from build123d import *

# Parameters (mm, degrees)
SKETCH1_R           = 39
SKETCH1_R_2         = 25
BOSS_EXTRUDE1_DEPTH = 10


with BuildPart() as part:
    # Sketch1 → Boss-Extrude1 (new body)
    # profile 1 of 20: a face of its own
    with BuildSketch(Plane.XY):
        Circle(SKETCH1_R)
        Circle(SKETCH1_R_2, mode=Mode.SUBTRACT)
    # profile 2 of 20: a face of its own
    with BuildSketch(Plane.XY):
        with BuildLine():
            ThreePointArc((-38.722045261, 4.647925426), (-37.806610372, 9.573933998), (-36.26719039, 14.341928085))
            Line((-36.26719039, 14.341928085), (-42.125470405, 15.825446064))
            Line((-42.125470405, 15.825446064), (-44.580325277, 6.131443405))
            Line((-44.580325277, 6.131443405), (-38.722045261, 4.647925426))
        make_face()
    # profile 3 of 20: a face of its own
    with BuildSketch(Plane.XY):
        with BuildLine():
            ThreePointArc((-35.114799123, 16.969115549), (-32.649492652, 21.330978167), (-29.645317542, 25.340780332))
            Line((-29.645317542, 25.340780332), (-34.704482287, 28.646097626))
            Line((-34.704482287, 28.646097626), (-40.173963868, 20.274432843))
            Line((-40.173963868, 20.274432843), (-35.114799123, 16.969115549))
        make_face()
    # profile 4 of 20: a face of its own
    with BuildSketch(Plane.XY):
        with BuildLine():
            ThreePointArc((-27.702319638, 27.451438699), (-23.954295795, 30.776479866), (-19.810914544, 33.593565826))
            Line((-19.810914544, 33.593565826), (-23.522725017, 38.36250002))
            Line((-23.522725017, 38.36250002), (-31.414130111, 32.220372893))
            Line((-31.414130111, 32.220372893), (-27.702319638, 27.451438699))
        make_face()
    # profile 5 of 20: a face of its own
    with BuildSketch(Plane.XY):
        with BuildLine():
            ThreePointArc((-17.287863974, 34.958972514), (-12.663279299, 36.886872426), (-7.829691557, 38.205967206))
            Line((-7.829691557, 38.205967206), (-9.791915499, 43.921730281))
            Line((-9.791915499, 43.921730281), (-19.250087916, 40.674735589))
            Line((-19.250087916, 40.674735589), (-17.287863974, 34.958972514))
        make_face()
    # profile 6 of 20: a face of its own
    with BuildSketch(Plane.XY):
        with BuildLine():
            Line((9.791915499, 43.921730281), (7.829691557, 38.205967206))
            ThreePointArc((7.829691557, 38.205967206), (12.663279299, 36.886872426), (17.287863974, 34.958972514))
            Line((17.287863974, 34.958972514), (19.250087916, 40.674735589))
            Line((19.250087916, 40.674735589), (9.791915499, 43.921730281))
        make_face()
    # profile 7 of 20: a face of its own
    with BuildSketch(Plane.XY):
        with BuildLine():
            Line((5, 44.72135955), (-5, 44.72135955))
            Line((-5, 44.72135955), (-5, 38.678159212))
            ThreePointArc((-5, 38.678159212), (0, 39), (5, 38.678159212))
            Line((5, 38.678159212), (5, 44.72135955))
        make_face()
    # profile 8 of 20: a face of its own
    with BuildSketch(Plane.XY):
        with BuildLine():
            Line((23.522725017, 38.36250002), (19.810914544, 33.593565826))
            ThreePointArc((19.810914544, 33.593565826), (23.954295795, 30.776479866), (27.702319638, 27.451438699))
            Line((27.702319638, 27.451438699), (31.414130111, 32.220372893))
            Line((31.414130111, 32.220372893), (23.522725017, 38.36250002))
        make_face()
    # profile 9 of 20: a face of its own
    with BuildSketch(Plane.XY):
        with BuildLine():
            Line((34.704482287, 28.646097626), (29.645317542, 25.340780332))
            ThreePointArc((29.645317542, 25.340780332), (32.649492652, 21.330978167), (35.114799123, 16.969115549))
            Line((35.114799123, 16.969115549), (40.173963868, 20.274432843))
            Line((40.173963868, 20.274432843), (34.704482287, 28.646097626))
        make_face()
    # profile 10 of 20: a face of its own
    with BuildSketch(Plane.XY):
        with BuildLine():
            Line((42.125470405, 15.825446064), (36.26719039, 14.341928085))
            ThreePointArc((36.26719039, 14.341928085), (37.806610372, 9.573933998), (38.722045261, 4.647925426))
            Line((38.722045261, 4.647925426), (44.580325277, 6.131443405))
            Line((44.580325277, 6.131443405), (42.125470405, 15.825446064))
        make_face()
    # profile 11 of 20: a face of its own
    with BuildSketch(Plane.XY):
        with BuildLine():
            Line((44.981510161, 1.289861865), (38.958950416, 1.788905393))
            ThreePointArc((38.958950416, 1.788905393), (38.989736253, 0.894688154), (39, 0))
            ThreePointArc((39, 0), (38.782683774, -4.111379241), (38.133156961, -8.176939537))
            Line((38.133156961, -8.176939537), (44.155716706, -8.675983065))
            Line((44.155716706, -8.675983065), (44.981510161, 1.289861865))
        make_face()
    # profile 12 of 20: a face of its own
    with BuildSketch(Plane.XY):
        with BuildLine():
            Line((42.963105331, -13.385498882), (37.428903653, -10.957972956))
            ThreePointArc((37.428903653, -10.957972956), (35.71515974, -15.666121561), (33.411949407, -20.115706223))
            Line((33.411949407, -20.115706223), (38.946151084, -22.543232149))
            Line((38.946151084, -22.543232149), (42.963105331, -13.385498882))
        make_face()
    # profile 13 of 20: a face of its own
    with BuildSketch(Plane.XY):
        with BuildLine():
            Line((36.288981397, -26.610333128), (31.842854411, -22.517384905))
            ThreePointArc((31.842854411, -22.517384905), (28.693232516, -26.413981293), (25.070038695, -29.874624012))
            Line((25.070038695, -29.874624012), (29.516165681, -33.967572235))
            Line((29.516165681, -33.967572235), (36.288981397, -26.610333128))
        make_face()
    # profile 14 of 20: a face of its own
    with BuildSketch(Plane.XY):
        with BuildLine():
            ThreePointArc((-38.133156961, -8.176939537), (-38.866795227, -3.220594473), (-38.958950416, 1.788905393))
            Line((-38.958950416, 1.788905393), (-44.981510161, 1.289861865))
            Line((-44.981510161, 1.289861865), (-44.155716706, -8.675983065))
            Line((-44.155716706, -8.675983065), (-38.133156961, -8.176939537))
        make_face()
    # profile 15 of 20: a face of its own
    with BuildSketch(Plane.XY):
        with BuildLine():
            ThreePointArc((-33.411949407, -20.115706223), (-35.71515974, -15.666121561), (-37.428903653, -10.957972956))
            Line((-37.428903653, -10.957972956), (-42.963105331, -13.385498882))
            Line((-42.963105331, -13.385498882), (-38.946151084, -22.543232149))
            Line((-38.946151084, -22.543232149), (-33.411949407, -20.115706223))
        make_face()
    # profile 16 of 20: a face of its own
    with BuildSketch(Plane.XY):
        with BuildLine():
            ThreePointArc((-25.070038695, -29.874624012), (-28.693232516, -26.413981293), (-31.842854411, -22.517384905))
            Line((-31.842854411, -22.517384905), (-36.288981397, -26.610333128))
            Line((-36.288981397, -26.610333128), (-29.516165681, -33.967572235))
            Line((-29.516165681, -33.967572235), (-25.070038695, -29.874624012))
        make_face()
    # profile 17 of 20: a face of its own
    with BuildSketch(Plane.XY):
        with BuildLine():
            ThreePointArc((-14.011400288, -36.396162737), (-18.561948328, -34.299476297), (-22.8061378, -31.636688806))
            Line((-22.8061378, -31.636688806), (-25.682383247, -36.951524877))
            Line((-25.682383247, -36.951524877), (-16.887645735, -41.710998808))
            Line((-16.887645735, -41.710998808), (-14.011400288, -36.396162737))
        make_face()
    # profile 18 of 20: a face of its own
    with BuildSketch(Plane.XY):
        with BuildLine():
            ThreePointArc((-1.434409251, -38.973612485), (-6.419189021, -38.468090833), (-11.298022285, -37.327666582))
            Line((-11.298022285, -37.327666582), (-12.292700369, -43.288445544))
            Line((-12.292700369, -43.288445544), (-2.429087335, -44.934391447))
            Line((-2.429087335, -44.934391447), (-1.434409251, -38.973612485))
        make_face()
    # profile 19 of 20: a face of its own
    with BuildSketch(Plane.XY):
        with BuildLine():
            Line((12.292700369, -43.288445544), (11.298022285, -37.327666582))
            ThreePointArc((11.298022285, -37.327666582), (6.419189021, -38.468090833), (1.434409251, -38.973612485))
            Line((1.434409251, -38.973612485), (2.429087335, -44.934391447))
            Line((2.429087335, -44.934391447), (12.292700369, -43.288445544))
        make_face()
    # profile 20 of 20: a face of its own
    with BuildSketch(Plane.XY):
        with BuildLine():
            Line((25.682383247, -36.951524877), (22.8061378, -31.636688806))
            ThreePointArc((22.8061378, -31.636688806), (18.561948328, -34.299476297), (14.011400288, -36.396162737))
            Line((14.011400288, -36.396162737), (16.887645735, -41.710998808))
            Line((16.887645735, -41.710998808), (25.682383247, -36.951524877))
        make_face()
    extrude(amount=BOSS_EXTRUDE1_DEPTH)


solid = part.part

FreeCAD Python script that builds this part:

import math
import FreeCAD as App
import Part
import Sketcher

V = App.Vector

doc = App.newDocument("Part")
body = doc.addObject("PartDesign::Body", "Body")

sketch1 = body.newObject("Sketcher::SketchObject", "Sketch")
sketch1.AttachmentSupport = (doc.getObject("XY_Plane"), [""])
sketch1.MapMode = "FlatFace"
sketch1.addGeometry([
    Part.ArcOfCircle(Part.Circle(V(0, 0, 0), V(0, 0, 1), 39), math.radians(2.629044), math.radians(6.84464)),
    Part.LineSegment(V(38.722045, 4.647925, 0), V(44.580325, 6.131443, 0)),
    Part.LineSegment(V(44.580325, 6.131443, 0), V(42.12547, 15.825446, 0)),
    Part.LineSegment(V(42.12547, 15.825446, 0), V(36.26719, 14.341928, 0)),
    Part.ArcOfCircle(Part.Circle(V(0, 0, 0), V(0, 0, 1), 39), math.radians(21.576412), math.radians(25.792009)),
    Part.LineSegment(V(35.114799, 16.969116, 0), V(40.173964, 20.274433, 0)),
    Part.LineSegment(V(40.173964, 20.274433, 0), V(34.704482, 28.646098, 0)),
    Part.LineSegment(V(34.704482, 28.646098, 0), V(29.645318, 25.34078, 0)),
    Part.ArcOfCircle(Part.Circle(V(0, 0, 0), V(0, 0, 1), 39), math.radians(40.523781), math.radians(44.739377)),
    Part.LineSegment(V(27.70232, 27.451439, 0), V(31.41413, 32.220373, 0)),
    Part.LineSegment(V(31.41413, 32.220373, 0), V(23.522725, 38.3625, 0)),
    Part.LineSegment(V(23.522725, 38.3625, 0), V(19.810915, 33.593566, 0)),
    Part.ArcOfCircle(Part.Circle(V(0, 0, 0), V(0, 0, 1), 39), math.radians(59.471149), math.radians(63.686746)),
    Part.LineSegment(V(17.287864, 34.958973, 0), V(19.250088, 40.674736, 0)),
    Part.LineSegment(V(19.250088, 40.674736, 0), V(9.791915, 43.92173, 0)),
    Part.LineSegment(V(9.791915, 43.92173, 0), V(7.829692, 38.205967, 0)),
    Part.ArcOfCircle(Part.Circle(V(0, 0, 0), V(0, 0, 1), 39), math.radians(78.418517), math.radians(82.634114)),
    Part.LineSegment(V(5, 38.678159, 0), V(5, 44.72136, 0)),
    Part.LineSegment(V(5, 44.72136, 0), V(-5, 44.72136, 0)),
    Part.LineSegment(V(-5, 44.72136, 0), V(-5, 38.678159, 0)),
    Part.ArcOfCircle(Part.Circle(V(0, 0, 0), V(0, 0, 1), 39), math.radians(97.365886), math.radians(101.581483)),
    Part.LineSegment(V(-7.829692, 38.205967, 0), V(-9.791915, 43.92173, 0)),
    Part.LineSegment(V(-9.791915, 43.92173, 0), V(-19.250088, 40.674736, 0)),
    Part.LineSegment(V(-19.250088, 40.674736, 0), V(-17.287864, 34.958973, 0)),
    Part.ArcOfCircle(Part.Circle(V(0, 0, 0), V(0, 0, 1), 39), math.radians(116.313254), math.radians(120.528851)),
    Part.LineSegment(V(-19.810915, 33.593566, 0), V(-23.522725, 38.3625, 0)),
    Part.LineSegment(V(-23.522725, 38.3625, 0), V(-31.41413, 32.220373, 0)),
    Part.LineSegment(V(-31.41413, 32.220373, 0), V(-27.70232, 27.451439, 0)),
    Part.ArcOfCircle(Part.Circle(V(0, 0, 0), V(0, 0, 1), 39), math.radians(135.260623), math.radians(139.476219)),
    Part.LineSegment(V(-29.645318, 25.34078, 0), V(-34.704482, 28.646098, 0)),
    Part.LineSegment(V(-34.704482, 28.646098, 0), V(-40.173964, 20.274433, 0)),
    Part.LineSegment(V(-40.173964, 20.274433, 0), V(-35.114799, 16.969116, 0)),
    Part.ArcOfCircle(Part.Circle(V(0, 0, 0), V(0, 0, 1), 39), math.radians(154.207991), math.radians(158.423588)),
    Part.LineSegment(V(-36.26719, 14.341928, 0), V(-42.12547, 15.825446, 0)),
    Part.LineSegment(V(-42.12547, 15.825446, 0), V(-44.580325, 6.131443, 0)),
    Part.LineSegment(V(-44.580325, 6.131443, 0), V(-38.722045, 4.647925, 0)),
    Part.ArcOfCircle(Part.Circle(V(0, 0, 0), V(0, 0, 1), 39), math.radians(173.15536), math.radians(177.370956)),
    Part.LineSegment(V(-38.95895, 1.788905, 0), V(-44.98151, 1.289862, 0)),
    Part.LineSegment(V(-44.98151, 1.289862, 0), V(-44.155717, -8.675983, 0)),
    Part.LineSegment(V(-44.155717, -8.675983, 0), V(-38.133157, -8.17694, 0)),
    Part.ArcOfCircle(Part.Circle(V(0, 0, 0), V(0, 0, 1), 39), math.radians(-167.897272), math.radians(-163.681675)),
    Part.LineSegment(V(-37.428904, -10.957973, 0), V(-42.963105, -13.385499, 0)),
    Part.LineSegment(V(-42.963105, -13.385499, 0), V(-38.946151, -22.543232, 0)),
    Part.LineSegment(V(-38.946151, -22.543232, 0), V(-33.411949, -20.115706, 0)),
    Part.ArcOfCircle(Part.Circle(V(0, 0, 0), V(0, 0, 1), 39), math.radians(-148.949904), math.radians(-144.734307)),
    Part.LineSegment(V(-31.842854, -22.517385, 0), V(-36.288981, -26.610333, 0)),
    Part.LineSegment(V(-36.288981, -26.610333, 0), V(-29.516166, -33.967572, 0)),
    Part.LineSegment(V(-29.516166, -33.967572, 0), V(-25.070039, -29.874624, 0)),
    Part.ArcOfCircle(Part.Circle(V(0, 0, 0), V(0, 0, 1), 39), math.radians(-130.002535), math.radians(-125.786938)),
    Part.LineSegment(V(-22.806138, -31.636689, 0), V(-25.682383, -36.951525, 0)),
    Part.LineSegment(V(-25.682383, -36.951525, 0), V(-16.887646, -41.710999, 0)),
    Part.LineSegment(V(-16.887646, -41.710999, 0), V(-14.0114, -36.396163, 0)),
    Part.ArcOfCircle(Part.Circle(V(0, 0, 0), V(0, 0, 1), 39), math.radians(-111.055167), math.radians(-106.83957)),
    Part.LineSegment(V(-11.298022, -37.327667, 0), V(-12.2927, -43.288446, 0)),
    Part.LineSegment(V(-12.2927, -43.288446, 0), V(-2.429087, -44.934391, 0)),
    Part.LineSegment(V(-2.429087, -44.934391, 0), V(-1.434409, -38.973612, 0)),
    Part.ArcOfCircle(Part.Circle(V(0, 0, 0), V(0, 0, 1), 39), math.radians(-92.107798), math.radians(-87.892202)),
    Part.LineSegment(V(1.434409, -38.973612, 0), V(2.429087, -44.934391, 0)),
    Part.LineSegment(V(2.429087, -44.934391, 0), V(12.2927, -43.288446, 0)),
    Part.LineSegment(V(12.2927, -43.288446, 0), V(11.298022, -37.327667, 0)),
    Part.ArcOfCircle(Part.Circle(V(0, 0, 0), V(0, 0, 1), 39), math.radians(-73.16043), math.radians(-68.944833)),
    Part.LineSegment(V(14.0114, -36.396163, 0), V(16.887646, -41.710999, 0)),
    Part.LineSegment(V(16.887646, -41.710999, 0), V(25.682383, -36.951525, 0)),
    Part.LineSegment(V(25.682383, -36.951525, 0), V(22.806138, -31.636689, 0)),
    Part.ArcOfCircle(Part.Circle(V(0, 0, 0), V(0, 0, 1), 39), math.radians(-54.213062), math.radians(-49.997465)),
    Part.LineSegment(V(25.070039, -29.874624, 0), V(29.516166, -33.967572, 0)),
    Part.LineSegment(V(29.516166, -33.967572, 0), V(36.288981, -26.610333, 0)),
    Part.LineSegment(V(36.288981, -26.610333, 0), V(31.842854, -22.517385, 0)),
    Part.ArcOfCircle(Part.Circle(V(0, 0, 0), V(0, 0, 1), 39), math.radians(-35.265693), math.radians(-31.050096)),
    Part.LineSegment(V(33.411949, -20.115706, 0), V(38.946151, -22.543232, 0)),
    Part.LineSegment(V(38.946151, -22.543232, 0), V(42.963105, -13.385499, 0)),
    Part.LineSegment(V(42.963105, -13.385499, 0), V(37.428904, -10.957973, 0)),
    Part.ArcOfCircle(Part.Circle(V(0, 0, 0), V(0, 0, 1), 39), math.radians(-16.318325), math.radians(-12.102728)),
    Part.LineSegment(V(38.133157, -8.17694, 0), V(44.155717, -8.675983, 0)),
    Part.LineSegment(V(44.155717, -8.675983, 0), V(44.98151, 1.289862, 0)),
    Part.LineSegment(V(44.98151, 1.289862, 0), V(38.95895, 1.788905, 0)),
    Part.Circle(V(0, 0, 0), V(0, 0, 1), 25),
], False)
sketch1.addConstraint([
    Sketcher.Constraint("Coincident", 0, 2, 1, 1),
    Sketcher.Constraint("Coincident", 1, 2, 2, 1),
    Sketcher.Constraint("Coincident", 2, 2, 3, 1),
    Sketcher.Constraint("Coincident", 3, 2, 4, 1),
    Sketcher.Constraint("Coincident", 4, 2, 5, 1),
    Sketcher.Constraint("Coincident", 5, 2, 6, 1),
    Sketcher.Constraint("Coincident", 6, 2, 7, 1),
    Sketcher.Constraint("Coincident", 7, 2, 8, 1),
    Sketcher.Constraint("Coincident", 8, 2, 9, 1),
    Sketcher.Constraint("Coincident", 9, 2, 10, 1),
    Sketcher.Constraint("Coincident", 10, 2, 11, 1),
    Sketcher.Constraint("Coincident", 11, 2, 12, 1),
    Sketcher.Constraint("Coincident", 12, 2, 13, 1),
    Sketcher.Constraint("Coincident", 13, 2, 14, 1),
    Sketcher.Constraint("Coincident", 14, 2, 15, 1),
    Sketcher.Constraint("Coincident", 15, 2, 16, 1),
    Sketcher.Constraint("Coincident", 16, 2, 17, 1),
    Sketcher.Constraint("Coincident", 17, 2, 18, 1),
    Sketcher.Constraint("Coincident", 18, 2, 19, 1),
    Sketcher.Constraint("Coincident", 19, 2, 20, 1),
    Sketcher.Constraint("Coincident", 20, 2, 21, 1),
    Sketcher.Constraint("Coincident", 21, 2, 22, 1),
    Sketcher.Constraint("Coincident", 22, 2, 23, 1),
    Sketcher.Constraint("Coincident", 23, 2, 24, 1),
    Sketcher.Constraint("Coincident", 24, 2, 25, 1),
    Sketcher.Constraint("Coincident", 25, 2, 26, 1),
    Sketcher.Constraint("Coincident", 26, 2, 27, 1),
    Sketcher.Constraint("Coincident", 27, 2, 28, 1),
    Sketcher.Constraint("Coincident", 28, 2, 29, 1),
    Sketcher.Constraint("Coincident", 29, 2, 30, 1),
    Sketcher.Constraint("Coincident", 30, 2, 31, 1),
    Sketcher.Constraint("Coincident", 31, 2, 32, 1),
    Sketcher.Constraint("Coincident", 32, 2, 33, 1),
    Sketcher.Constraint("Coincident", 33, 2, 34, 1),
    Sketcher.Constraint("Coincident", 34, 2, 35, 1),
    Sketcher.Constraint("Coincident", 35, 2, 36, 1),
    Sketcher.Constraint("Coincident", 36, 2, 37, 1),
    Sketcher.Constraint("Coincident", 37, 2, 38, 1),
    Sketcher.Constraint("Coincident", 38, 2, 39, 1),
    Sketcher.Constraint("Coincident", 39, 2, 40, 1),
    Sketcher.Constraint("Coincident", 40, 2, 41, 1),
    Sketcher.Constraint("Coincident", 41, 2, 42, 1),
    Sketcher.Constraint("Coincident", 42, 2, 43, 1),
    Sketcher.Constraint("Coincident", 43, 2, 44, 1),
    Sketcher.Constraint("Coincident", 44, 2, 45, 1),
    Sketcher.Constraint("Coincident", 45, 2, 46, 1),
    Sketcher.Constraint("Coincident", 46, 2, 47, 1),
    Sketcher.Constraint("Coincident", 47, 2, 48, 1),
    Sketcher.Constraint("Coincident", 48, 2, 49, 1),
    Sketcher.Constraint("Coincident", 49, 2, 50, 1),
    Sketcher.Constraint("Coincident", 50, 2, 51, 1),
    Sketcher.Constraint("Coincident", 51, 2, 52, 1),
    Sketcher.Constraint("Coincident", 52, 2, 53, 1),
    Sketcher.Constraint("Coincident", 53, 2, 54, 1),
    Sketcher.Constraint("Coincident", 54, 2, 55, 1),
    Sketcher.Constraint("Coincident", 55, 2, 56, 1),
    Sketcher.Constraint("Coincident", 56, 2, 57, 1),
    Sketcher.Constraint("Coincident", 57, 2, 58, 1),
    Sketcher.Constraint("Coincident", 58, 2, 59, 1),
    Sketcher.Constraint("Coincident", 59, 2, 60, 1),
    Sketcher.Constraint("Coincident", 60, 2, 61, 1),
    Sketcher.Constraint("Coincident", 61, 2, 62, 1),
    Sketcher.Constraint("Coincident", 62, 2, 63, 1),
    Sketcher.Constraint("Coincident", 63, 2, 64, 1),
    Sketcher.Constraint("Coincident", 64, 2, 65, 1),
    Sketcher.Constraint("Coincident", 65, 2, 66, 1),
    Sketcher.Constraint("Coincident", 66, 2, 67, 1),
    Sketcher.Constraint("Coincident", 67, 2, 68, 1),
    Sketcher.Constraint("Coincident", 68, 2, 69, 1),
    Sketcher.Constraint("Coincident", 69, 2, 70, 1),
    Sketcher.Constraint("Coincident", 70, 2, 71, 1),
    Sketcher.Constraint("Coincident", 71, 2, 72, 1),
    Sketcher.Constraint("Coincident", 72, 2, 73, 1),
    Sketcher.Constraint("Coincident", 73, 2, 74, 1),
    Sketcher.Constraint("Coincident", 74, 2, 75, 1),
    Sketcher.Constraint("Coincident", 75, 2, 0, 1),
    Sketcher.Constraint("Vertical", 17),
    Sketcher.Constraint("Horizontal", 18),
    Sketcher.Constraint("Vertical", 19),
    Sketcher.Constraint("Coincident", 0, 3, -1, 1),
    Sketcher.Constraint("Coincident", 4, 3, -1, 1),
    Sketcher.Constraint("Coincident", 8, 3, -1, 1),
    Sketcher.Constraint("Coincident", 12, 3, -1, 1),
    Sketcher.Constraint("Coincident", 16, 3, -1, 1),
    Sketcher.Constraint("Coincident", 20, 3, -1, 1),
    Sketcher.Constraint("Coincident", 24, 3, -1, 1),
    Sketcher.Constraint("Coincident", 28, 3, -1, 1),
    Sketcher.Constraint("Coincident", 32, 3, -1, 1),
    Sketcher.Constraint("Coincident", 36, 3, -1, 1),
    Sketcher.Constraint("Coincident", 40, 3, -1, 1),
    Sketcher.Constraint("Coincident", 44, 3, -1, 1),
    Sketcher.Constraint("Coincident", 48, 3, -1, 1),
    Sketcher.Constraint("Coincident", 52, 3, -1, 1),
    Sketcher.Constraint("Coincident", 56, 3, -1, 1),
    Sketcher.Constraint("Coincident", 60, 3, -1, 1),
    Sketcher.Constraint("Coincident", 64, 3, -1, 1),
    Sketcher.Constraint("Coincident", 68, 3, -1, 1),
    Sketcher.Constraint("Coincident", 72, 3, -1, 1),
    Sketcher.Constraint("Coincident", 76, 3, -1, 1),
    Sketcher.Constraint("Equal", 0, 4),
    Sketcher.Constraint("Equal", 4, 8),
    Sketcher.Constraint("Equal", 8, 12),
    Sketcher.Constraint("Equal", 12, 16),
    Sketcher.Constraint("Equal", 16, 20),
    Sketcher.Constraint("Equal", 20, 24),
    Sketcher.Constraint("Equal", 24, 28),
    Sketcher.Constraint("Equal", 28, 32),
    Sketcher.Constraint("Equal", 32, 36),
    Sketcher.Constraint("Equal", 36, 40),
    Sketcher.Constraint("Equal", 40, 44),
    Sketcher.Constraint("Equal", 44, 48),
    Sketcher.Constraint("Equal", 48, 52),
    Sketcher.Constraint("Equal", 52, 56),
    Sketcher.Constraint("Equal", 56, 60),
    Sketcher.Constraint("Equal", 60, 64),
    Sketcher.Constraint("Equal", 64, 68),
    Sketcher.Constraint("Equal", 68, 72),
    Sketcher.Constraint("Symmetric", 14, 2, 21, 2, -2),
    Sketcher.Constraint("Symmetric", 13, 2, 22, 2, -2),
    Sketcher.Constraint("Symmetric", 10, 2, 25, 2, -2),
    Sketcher.Constraint("Symmetric", 9, 2, 26, 2, -2),
    Sketcher.Constraint("Symmetric", 6, 2, 29, 2, -2),
    Sketcher.Constraint("Symmetric", 5, 2, 30, 2, -2),
    Sketcher.Constraint("Symmetric", 2, 2, 33, 2, -2),
    Sketcher.Constraint("Symmetric", 1, 2, 34, 2, -2),
    Sketcher.Constraint("Symmetric", 54, 2, 57, 2, -2),
    Sketcher.Constraint("Symmetric", 53, 2, 58, 2, -2),
    Sketcher.Constraint("Symmetric", 50, 2, 61, 2, -2),
    Sketcher.Constraint("Symmetric", 49, 2, 62, 2, -2),
    Sketcher.Constraint("Symmetric", 46, 2, 65, 2, -2),
    Sketcher.Constraint("Symmetric", 45, 2, 66, 2, -2),
    Sketcher.Constraint("Symmetric", 42, 2, 69, 2, -2),
    Sketcher.Constraint("Symmetric", 41, 2, 70, 2, -2),
    Sketcher.Constraint("Symmetric", 38, 2, 73, 2, -2),
    Sketcher.Constraint("Symmetric", 37, 2, 74, 2, -2),
    Sketcher.Constraint("Perpendicular", 1, 2),
    Sketcher.Constraint("Perpendicular", 2, 3),
    Sketcher.Constraint("Perpendicular", 5, 6),
    Sketcher.Constraint("Perpendicular", 6, 7),
    Sketcher.Constraint("Perpendicular", 9, 10),
    Sketcher.Constraint("Perpendicular", 10, 11),
    Sketcher.Constraint("Perpendicular", 13, 14),
    Sketcher.Constraint("Perpendicular", 14, 15),
    Sketcher.Constraint("Perpendicular", 21, 22),
    Sketcher.Constraint("Perpendicular", 22, 23),
    Sketcher.Constraint("Perpendicular", 25, 26),
    Sketcher.Constraint("Perpendicular", 26, 27),
    Sketcher.Constraint("Perpendicular", 29, 30),
    Sketcher.Constraint("Perpendicular", 30, 31),
    Sketcher.Constraint("Perpendicular", 33, 34),
    Sketcher.Constraint("Perpendicular", 34, 35),
    Sketcher.Constraint("Perpendicular", 37, 38),
    Sketcher.Constraint("Perpendicular", 38, 39),
    Sketcher.Constraint("Perpendicular", 41, 42),
    Sketcher.Constraint("Perpendicular", 42, 43),
    Sketcher.Constraint("Perpendicular", 45, 46),
    Sketcher.Constraint("Perpendicular", 46, 47),
    Sketcher.Constraint("Perpendicular", 49, 50),
    Sketcher.Constraint("Perpendicular", 50, 51),
    Sketcher.Constraint("Perpendicular", 53, 54),
    Sketcher.Constraint("Perpendicular", 54, 55),
    Sketcher.Constraint("Perpendicular", 57, 58),
    Sketcher.Constraint("Perpendicular", 58, 59),
    Sketcher.Constraint("Perpendicular", 61, 62),
    Sketcher.Constraint("Perpendicular", 62, 63),
    Sketcher.Constraint("Perpendicular", 65, 66),
    Sketcher.Constraint("Perpendicular", 66, 67),
    Sketcher.Constraint("Perpendicular", 69, 70),
    Sketcher.Constraint("Perpendicular", 70, 71),
    Sketcher.Constraint("Perpendicular", 73, 74),
    Sketcher.Constraint("Perpendicular", 74, 75),
    Sketcher.Constraint("Horizontal", 16, 2, 19, 2),
    Sketcher.Constraint("Equal", 1, 3),
    Sketcher.Constraint("Equal", 3, 5),
    Sketcher.Constraint("Equal", 2, 6),
    Sketcher.Constraint("Equal", 5, 7),
    Sketcher.Constraint("Equal", 7, 9),
    Sketcher.Constraint("Equal", 6, 10),
    Sketcher.Constraint("Equal", 9, 11),
    Sketcher.Constraint("Equal", 11, 13),
    Sketcher.Constraint("Equal", 10, 14),
    Sketcher.Constraint("Equal", 13, 15),
    Sketcher.Constraint("Equal", 35, 37),
    Sketcher.Constraint("Equal", 34, 38),
    Sketcher.Constraint("Equal", 37, 39),
    Sketcher.Constraint("Equal", 39, 41),
    Sketcher.Constraint("Equal", 38, 42),
    Sketcher.Constraint("Equal", 41, 43),
    Sketcher.Constraint("Equal", 43, 45),
    Sketcher.Constraint("Equal", 42, 46),
    Sketcher.Constraint("Equal", 45, 47),
    Sketcher.Constraint("Equal", 47, 49),
    Sketcher.Constraint("Equal", 46, 50),
    Sketcher.Constraint("Equal", 49, 51),
    Sketcher.Constraint("Equal", 51, 53),
    Sketcher.Constraint("Equal", 50, 54),
    Sketcher.Constraint("Equal", 53, 55),
    Sketcher.Constraint("Diameter", 76, 50.0),
    Sketcher.Constraint("Radius", 0, 39.0),
    Sketcher.Constraint("DistanceX", 18, 2, 18, 1, 10.0),
    Sketcher.Constraint("Distance", 2, 10.0),
    Sketcher.Constraint("DistanceY", 17, 1, 17, 2, 6.0432),
    Sketcher.Constraint("DistanceY", 50, 2, -1, 1, 41.710999),
    Sketcher.Constraint("Distance", 1, 6.0432),
    Sketcher.Constraint("DistanceX", -1, 1, 4, 2, 35.114799),
    Sketcher.Constraint("DistanceY", -1, 1, 10, 2, 38.3625),
    Sketcher.Constraint("DistanceY", 41, 2, -1, 1, 13.385499),
    Sketcher.Constraint("DistanceX", 53, 2, -1, 1, 12.2927),
    Sketcher.Constraint("DistanceX", -1, 1, 2, 2, 42.12547),
    Sketcher.Constraint("DistanceY", -1, 1, 14, 2, 43.92173),
    Sketcher.Constraint("DistanceX", 36, 2, -1, 1, 38.95895),
    Sketcher.Constraint("DistanceX", 45, 2, -1, 1, 36.288981),
])
pad1 = body.newObject("PartDesign::Pad", "Pad")
pad1.Profile = sketch1
pad1.Length = 10

doc.recompute()
